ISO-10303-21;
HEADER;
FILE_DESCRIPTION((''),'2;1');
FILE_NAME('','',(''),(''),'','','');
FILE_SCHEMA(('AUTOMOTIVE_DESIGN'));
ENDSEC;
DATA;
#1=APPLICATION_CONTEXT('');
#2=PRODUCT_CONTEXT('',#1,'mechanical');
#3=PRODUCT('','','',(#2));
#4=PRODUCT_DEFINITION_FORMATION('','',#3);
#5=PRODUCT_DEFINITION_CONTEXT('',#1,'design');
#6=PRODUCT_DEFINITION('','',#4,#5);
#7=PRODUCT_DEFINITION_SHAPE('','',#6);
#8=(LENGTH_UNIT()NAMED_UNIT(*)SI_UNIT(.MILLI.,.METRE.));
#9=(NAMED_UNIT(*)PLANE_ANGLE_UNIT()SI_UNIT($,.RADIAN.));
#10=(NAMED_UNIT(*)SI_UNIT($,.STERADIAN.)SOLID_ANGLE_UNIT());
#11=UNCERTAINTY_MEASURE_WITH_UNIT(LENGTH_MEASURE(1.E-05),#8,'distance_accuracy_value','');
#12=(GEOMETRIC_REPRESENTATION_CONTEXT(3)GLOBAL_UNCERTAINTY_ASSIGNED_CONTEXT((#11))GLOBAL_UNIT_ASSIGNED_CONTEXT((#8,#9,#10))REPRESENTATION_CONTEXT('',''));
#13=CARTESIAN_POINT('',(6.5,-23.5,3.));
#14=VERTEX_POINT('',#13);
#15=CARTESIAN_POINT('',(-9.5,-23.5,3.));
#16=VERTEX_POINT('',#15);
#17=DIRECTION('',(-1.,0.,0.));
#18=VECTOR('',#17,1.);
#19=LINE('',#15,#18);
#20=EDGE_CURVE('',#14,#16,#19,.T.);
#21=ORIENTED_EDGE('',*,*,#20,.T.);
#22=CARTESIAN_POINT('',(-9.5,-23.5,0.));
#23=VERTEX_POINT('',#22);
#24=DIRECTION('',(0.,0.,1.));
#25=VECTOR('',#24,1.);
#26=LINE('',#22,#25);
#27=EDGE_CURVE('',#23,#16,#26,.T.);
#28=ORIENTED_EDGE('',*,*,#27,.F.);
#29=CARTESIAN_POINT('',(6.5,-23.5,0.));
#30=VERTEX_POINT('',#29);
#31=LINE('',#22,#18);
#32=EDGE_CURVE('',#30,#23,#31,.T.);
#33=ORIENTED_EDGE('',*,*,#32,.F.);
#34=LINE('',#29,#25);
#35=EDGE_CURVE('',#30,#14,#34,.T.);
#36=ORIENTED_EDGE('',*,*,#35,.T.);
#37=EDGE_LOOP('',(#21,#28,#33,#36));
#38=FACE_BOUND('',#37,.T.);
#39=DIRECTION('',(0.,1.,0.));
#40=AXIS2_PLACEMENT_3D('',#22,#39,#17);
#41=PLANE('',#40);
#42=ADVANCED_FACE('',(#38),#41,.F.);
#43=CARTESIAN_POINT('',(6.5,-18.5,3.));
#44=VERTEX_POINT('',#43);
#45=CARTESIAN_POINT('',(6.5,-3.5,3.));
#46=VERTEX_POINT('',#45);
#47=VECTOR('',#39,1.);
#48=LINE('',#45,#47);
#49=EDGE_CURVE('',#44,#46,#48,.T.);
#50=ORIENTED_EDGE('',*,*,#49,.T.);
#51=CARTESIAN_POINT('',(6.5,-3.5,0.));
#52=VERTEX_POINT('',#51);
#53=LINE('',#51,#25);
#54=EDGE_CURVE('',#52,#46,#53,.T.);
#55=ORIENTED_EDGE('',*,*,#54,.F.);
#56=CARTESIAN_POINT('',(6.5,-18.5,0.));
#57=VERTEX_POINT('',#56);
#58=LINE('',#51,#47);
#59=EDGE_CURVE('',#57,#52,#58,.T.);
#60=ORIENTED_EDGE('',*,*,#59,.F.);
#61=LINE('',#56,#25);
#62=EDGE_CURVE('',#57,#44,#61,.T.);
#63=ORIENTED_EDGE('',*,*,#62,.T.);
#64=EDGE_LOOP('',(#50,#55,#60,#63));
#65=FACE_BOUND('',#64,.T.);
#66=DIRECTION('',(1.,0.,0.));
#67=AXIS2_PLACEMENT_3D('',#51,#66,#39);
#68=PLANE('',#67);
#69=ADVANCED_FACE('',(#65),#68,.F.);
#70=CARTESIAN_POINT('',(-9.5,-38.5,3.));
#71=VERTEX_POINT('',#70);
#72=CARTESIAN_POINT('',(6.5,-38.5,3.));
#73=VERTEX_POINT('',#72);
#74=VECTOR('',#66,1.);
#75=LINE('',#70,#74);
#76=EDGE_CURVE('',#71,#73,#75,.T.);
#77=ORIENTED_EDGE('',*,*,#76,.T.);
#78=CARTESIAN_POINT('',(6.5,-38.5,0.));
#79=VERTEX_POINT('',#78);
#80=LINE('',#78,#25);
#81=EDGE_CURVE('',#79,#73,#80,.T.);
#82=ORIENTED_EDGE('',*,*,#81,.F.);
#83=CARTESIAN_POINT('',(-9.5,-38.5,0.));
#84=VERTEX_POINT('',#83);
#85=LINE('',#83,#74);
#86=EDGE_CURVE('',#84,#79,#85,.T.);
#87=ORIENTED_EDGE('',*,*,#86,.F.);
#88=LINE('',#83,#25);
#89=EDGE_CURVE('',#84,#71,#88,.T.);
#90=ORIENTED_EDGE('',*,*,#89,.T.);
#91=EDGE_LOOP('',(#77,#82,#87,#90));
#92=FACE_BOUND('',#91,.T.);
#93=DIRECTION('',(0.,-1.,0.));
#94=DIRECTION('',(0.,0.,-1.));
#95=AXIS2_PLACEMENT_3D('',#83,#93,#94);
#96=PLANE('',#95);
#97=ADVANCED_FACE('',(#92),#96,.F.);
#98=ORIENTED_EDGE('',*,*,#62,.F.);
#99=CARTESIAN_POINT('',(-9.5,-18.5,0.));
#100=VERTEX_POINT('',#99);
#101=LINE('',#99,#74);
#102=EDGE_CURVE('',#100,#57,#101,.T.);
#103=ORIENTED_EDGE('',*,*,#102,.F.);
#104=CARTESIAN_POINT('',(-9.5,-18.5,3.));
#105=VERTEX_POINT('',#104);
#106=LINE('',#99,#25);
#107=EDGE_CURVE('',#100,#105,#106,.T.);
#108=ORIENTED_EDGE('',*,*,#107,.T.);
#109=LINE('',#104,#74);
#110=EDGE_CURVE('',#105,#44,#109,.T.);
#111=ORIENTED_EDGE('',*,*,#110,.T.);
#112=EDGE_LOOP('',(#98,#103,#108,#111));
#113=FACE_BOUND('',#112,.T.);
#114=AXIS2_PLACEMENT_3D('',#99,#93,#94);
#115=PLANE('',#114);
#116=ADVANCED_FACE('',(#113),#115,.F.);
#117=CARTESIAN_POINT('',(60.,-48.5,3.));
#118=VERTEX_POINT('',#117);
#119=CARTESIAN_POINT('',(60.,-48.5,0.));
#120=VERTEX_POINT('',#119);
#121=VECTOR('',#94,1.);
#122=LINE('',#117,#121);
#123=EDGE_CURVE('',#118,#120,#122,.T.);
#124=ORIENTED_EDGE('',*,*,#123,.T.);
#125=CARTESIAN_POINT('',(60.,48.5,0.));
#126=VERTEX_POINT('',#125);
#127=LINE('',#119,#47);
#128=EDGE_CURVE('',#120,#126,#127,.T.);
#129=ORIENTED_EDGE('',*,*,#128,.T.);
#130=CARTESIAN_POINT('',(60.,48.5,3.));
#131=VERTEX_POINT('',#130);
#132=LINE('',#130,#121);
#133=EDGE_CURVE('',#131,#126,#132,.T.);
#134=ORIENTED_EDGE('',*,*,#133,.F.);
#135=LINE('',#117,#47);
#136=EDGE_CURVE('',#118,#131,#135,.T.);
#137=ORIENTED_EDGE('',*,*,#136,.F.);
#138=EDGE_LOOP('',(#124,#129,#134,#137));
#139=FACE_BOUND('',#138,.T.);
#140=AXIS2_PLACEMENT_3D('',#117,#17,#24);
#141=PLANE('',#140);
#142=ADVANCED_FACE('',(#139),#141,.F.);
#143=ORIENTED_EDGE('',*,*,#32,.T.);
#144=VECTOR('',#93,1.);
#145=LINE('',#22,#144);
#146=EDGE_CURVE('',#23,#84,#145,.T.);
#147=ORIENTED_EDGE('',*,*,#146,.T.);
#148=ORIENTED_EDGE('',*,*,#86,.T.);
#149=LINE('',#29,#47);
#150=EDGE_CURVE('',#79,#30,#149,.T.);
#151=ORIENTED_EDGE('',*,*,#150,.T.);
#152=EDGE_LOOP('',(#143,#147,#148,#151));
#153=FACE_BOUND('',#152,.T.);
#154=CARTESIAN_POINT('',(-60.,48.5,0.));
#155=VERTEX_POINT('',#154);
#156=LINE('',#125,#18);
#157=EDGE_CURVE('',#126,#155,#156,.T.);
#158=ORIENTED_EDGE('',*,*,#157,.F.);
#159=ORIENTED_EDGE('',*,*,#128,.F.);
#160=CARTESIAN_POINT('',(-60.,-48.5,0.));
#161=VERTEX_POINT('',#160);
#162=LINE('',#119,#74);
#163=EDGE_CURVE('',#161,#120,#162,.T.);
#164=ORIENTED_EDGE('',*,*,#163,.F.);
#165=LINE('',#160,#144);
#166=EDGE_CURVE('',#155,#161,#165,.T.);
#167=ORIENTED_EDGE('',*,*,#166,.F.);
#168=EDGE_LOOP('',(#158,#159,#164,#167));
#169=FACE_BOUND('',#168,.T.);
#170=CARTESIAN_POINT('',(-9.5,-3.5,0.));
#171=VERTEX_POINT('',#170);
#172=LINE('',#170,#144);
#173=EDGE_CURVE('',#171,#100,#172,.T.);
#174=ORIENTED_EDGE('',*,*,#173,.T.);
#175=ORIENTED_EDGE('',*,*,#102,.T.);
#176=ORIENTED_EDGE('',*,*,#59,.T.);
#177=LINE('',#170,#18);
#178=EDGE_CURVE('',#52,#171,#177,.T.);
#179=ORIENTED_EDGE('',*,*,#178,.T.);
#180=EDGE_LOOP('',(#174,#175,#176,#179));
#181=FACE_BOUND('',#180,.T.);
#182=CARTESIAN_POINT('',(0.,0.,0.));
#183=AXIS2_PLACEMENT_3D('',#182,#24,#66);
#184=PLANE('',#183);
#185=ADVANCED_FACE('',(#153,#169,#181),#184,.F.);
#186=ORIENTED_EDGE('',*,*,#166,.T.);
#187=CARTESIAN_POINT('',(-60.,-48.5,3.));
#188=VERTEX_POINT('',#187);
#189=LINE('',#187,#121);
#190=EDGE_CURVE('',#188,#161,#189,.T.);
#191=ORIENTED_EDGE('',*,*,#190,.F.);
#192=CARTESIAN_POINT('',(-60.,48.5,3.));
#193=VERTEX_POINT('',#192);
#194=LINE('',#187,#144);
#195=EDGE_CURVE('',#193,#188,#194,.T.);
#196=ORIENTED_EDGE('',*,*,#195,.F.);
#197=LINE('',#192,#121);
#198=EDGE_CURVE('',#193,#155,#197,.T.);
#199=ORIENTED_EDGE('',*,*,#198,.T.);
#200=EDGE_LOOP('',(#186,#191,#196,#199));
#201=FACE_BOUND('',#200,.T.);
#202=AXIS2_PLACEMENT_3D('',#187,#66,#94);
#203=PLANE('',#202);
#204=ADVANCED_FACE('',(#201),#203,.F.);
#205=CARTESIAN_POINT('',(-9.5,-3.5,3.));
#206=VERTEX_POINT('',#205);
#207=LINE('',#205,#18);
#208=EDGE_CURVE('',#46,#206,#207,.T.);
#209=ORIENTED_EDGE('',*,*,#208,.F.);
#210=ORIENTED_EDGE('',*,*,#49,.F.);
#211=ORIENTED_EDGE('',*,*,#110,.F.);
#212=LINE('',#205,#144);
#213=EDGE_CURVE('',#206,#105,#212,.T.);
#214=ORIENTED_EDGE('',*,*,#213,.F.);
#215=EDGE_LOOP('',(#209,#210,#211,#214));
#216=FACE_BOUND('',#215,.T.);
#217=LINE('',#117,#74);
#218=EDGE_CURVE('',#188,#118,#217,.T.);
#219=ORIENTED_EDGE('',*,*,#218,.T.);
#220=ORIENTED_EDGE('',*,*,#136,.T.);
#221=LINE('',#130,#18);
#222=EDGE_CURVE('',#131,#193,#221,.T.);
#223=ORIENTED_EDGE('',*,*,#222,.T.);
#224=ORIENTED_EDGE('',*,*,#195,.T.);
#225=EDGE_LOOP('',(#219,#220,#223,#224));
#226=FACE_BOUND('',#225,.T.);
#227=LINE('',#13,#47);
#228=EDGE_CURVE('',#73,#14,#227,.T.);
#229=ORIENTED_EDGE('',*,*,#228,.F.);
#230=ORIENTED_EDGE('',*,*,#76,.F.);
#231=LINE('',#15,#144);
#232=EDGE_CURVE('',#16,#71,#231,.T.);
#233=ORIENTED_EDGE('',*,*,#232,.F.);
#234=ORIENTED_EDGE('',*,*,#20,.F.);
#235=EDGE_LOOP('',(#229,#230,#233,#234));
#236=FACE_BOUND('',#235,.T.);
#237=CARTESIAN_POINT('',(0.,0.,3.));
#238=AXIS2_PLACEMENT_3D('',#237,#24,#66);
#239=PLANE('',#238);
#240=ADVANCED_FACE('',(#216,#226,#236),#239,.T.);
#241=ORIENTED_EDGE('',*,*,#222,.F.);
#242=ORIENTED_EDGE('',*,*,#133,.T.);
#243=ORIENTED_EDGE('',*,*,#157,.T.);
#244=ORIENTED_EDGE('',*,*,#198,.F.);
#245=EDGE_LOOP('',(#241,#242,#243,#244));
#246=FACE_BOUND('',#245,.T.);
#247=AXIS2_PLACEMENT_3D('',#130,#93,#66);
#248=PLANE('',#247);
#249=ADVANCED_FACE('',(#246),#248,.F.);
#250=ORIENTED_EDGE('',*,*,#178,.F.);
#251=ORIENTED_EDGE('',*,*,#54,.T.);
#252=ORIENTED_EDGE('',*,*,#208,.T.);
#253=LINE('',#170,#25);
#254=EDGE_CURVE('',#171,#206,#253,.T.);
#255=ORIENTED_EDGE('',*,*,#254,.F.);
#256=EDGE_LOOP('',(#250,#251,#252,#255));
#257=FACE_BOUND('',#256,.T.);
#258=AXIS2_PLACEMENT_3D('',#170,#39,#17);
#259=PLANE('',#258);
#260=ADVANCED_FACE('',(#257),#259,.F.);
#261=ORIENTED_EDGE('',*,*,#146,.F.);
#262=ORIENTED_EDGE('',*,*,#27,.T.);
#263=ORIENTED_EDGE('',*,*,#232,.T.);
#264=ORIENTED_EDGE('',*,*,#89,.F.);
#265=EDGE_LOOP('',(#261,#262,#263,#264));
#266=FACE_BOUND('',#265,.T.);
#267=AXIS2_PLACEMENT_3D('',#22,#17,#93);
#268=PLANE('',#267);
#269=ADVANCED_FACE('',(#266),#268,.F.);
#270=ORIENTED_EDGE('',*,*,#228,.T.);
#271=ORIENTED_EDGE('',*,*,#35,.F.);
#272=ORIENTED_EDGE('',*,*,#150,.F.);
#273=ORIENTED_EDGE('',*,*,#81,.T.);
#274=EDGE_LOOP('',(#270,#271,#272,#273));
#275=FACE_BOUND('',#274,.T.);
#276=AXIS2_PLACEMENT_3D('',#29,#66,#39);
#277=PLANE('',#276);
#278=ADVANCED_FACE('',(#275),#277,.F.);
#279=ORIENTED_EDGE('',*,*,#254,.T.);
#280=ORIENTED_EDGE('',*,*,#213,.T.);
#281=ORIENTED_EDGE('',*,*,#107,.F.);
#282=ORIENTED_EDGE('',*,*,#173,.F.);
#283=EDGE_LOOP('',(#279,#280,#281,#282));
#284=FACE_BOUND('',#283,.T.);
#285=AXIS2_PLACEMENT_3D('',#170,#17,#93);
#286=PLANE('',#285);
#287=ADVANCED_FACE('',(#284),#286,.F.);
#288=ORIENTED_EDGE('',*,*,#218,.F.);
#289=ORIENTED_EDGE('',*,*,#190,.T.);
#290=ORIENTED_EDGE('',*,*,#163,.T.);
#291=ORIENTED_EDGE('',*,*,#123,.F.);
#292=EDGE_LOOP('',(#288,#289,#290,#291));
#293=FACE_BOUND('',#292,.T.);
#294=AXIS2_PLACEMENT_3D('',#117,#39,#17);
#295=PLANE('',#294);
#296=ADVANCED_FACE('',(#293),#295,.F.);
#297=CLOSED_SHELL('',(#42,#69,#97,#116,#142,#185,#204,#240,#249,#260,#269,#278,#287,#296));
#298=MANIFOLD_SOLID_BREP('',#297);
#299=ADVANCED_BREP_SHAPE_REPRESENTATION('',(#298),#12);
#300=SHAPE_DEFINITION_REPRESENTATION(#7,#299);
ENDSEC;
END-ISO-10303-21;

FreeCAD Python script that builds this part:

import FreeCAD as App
import Part
import Sketcher

V = App.Vector
Q = App.Units.Quantity


def add_polygon(sketch, points):
    """Adds a closed chain of lines whose ends are joined by coincident constraints."""
    first, n = sketch.GeometryCount, len(points)
    for a, b in zip(points, points[1:] + points[:1]):
        sketch.addGeometry(Part.LineSegment(App.Vector(*a, 0), App.Vector(*b, 0)), False)
    for i in range(n):
        sketch.addConstraint(Sketcher.Constraint("Coincident", first + i, 2, first + (i + 1) % n, 1))

doc = App.newDocument("Part")
body = doc.addObject("PartDesign::Body", "Body")

# Sketch on XY plane
sketch1 = doc.addObject("Sketcher::SketchObject", "Sketch")
body.addObject(sketch1)
sketch1.AttachmentSupport = (doc.XY_Plane, [""])
sketch1.MapMode = "FlatFace"
add_polygon(sketch1, [(-60, 48), (-60, -48), (60, -48), (60, 48)])  # lines 0-3
sketch1.addConstraint(Sketcher.Constraint("Vertical", 0))
sketch1.addConstraint(Sketcher.Constraint("Horizontal", 1))
sketch1.addConstraint(Sketcher.Constraint("Vertical", 2))
sketch1.addConstraint(Sketcher.Constraint("Horizontal", 3))
sketch1.addConstraint(Sketcher.Constraint("Symmetric", 0, 2, 2, 2, -1, 1))
sketch1.addConstraint(Sketcher.Constraint("DistanceX", 1, 1, 1, 2, Q("120 mm")))
sketch1.addConstraint(Sketcher.Constraint("DistanceY", 0, 2, 0, 1, Q("97 mm")))
pad1 = doc.addObject("PartDesign::Pad", "Pad")
body.addObject(pad1)
pad1.Profile = sketch1
pad1.Length = 3

# Sketch on XY plane
sketch2 = doc.addObject("Sketcher::SketchObject", "Sketch001")
body.addObject(sketch2)
sketch2.AttachmentSupport = (doc.XY_Plane, [""])
sketch2.MapMode = "FlatFace"
sketch2.AttachmentOffset = App.Placement(V(0, 0, 3), App.Rotation())
add_polygon(sketch2, [(-10, -24), (-10, -38), (6, -38), (6, -24)])  # lines 0-3
sketch2.addConstraint(Sketcher.Constraint("Vertical", 0))
sketch2.addConstraint(Sketcher.Constraint("Horizontal", 1))
sketch2.addConstraint(Sketcher.Constraint("Vertical", 2))
sketch2.addConstraint(Sketcher.Constraint("Horizontal", 3))
sketch2.addConstraint(Sketcher.Constraint("DistanceX", 1, 1, 1, 2, Q("16 mm")))
sketch2.addConstraint(Sketcher.Constraint("DistanceY", 0, 2, 0, 1, Q("15 mm")))
sketch2.addConstraint(Sketcher.Constraint("DistanceX", 0, 2, -1, 1, Q("9.5 mm")))
sketch2.addConstraint(Sketcher.Constraint("DistanceY", 0, 2, -1, 1, Q("38.5 mm")))
pocket1 = doc.addObject("PartDesign::Pocket", "Pocket")
body.addObject(pocket1)
pocket1.Profile = sketch2
pocket1.Type = "ThroughAll"
doc.recompute()

linearpattern = doc.addObject("PartDesign::LinearPattern", "LinearPattern")
body.addObject(linearpattern)
linearpattern.Originals = [pocket1]
linearpattern.Direction = (doc.Y_Axis, [""])
linearpattern.Mode = "offset"
linearpattern.Offset = 20
linearpattern.Occurrences = 2
body.Tip = linearpattern

doc.recompute()
